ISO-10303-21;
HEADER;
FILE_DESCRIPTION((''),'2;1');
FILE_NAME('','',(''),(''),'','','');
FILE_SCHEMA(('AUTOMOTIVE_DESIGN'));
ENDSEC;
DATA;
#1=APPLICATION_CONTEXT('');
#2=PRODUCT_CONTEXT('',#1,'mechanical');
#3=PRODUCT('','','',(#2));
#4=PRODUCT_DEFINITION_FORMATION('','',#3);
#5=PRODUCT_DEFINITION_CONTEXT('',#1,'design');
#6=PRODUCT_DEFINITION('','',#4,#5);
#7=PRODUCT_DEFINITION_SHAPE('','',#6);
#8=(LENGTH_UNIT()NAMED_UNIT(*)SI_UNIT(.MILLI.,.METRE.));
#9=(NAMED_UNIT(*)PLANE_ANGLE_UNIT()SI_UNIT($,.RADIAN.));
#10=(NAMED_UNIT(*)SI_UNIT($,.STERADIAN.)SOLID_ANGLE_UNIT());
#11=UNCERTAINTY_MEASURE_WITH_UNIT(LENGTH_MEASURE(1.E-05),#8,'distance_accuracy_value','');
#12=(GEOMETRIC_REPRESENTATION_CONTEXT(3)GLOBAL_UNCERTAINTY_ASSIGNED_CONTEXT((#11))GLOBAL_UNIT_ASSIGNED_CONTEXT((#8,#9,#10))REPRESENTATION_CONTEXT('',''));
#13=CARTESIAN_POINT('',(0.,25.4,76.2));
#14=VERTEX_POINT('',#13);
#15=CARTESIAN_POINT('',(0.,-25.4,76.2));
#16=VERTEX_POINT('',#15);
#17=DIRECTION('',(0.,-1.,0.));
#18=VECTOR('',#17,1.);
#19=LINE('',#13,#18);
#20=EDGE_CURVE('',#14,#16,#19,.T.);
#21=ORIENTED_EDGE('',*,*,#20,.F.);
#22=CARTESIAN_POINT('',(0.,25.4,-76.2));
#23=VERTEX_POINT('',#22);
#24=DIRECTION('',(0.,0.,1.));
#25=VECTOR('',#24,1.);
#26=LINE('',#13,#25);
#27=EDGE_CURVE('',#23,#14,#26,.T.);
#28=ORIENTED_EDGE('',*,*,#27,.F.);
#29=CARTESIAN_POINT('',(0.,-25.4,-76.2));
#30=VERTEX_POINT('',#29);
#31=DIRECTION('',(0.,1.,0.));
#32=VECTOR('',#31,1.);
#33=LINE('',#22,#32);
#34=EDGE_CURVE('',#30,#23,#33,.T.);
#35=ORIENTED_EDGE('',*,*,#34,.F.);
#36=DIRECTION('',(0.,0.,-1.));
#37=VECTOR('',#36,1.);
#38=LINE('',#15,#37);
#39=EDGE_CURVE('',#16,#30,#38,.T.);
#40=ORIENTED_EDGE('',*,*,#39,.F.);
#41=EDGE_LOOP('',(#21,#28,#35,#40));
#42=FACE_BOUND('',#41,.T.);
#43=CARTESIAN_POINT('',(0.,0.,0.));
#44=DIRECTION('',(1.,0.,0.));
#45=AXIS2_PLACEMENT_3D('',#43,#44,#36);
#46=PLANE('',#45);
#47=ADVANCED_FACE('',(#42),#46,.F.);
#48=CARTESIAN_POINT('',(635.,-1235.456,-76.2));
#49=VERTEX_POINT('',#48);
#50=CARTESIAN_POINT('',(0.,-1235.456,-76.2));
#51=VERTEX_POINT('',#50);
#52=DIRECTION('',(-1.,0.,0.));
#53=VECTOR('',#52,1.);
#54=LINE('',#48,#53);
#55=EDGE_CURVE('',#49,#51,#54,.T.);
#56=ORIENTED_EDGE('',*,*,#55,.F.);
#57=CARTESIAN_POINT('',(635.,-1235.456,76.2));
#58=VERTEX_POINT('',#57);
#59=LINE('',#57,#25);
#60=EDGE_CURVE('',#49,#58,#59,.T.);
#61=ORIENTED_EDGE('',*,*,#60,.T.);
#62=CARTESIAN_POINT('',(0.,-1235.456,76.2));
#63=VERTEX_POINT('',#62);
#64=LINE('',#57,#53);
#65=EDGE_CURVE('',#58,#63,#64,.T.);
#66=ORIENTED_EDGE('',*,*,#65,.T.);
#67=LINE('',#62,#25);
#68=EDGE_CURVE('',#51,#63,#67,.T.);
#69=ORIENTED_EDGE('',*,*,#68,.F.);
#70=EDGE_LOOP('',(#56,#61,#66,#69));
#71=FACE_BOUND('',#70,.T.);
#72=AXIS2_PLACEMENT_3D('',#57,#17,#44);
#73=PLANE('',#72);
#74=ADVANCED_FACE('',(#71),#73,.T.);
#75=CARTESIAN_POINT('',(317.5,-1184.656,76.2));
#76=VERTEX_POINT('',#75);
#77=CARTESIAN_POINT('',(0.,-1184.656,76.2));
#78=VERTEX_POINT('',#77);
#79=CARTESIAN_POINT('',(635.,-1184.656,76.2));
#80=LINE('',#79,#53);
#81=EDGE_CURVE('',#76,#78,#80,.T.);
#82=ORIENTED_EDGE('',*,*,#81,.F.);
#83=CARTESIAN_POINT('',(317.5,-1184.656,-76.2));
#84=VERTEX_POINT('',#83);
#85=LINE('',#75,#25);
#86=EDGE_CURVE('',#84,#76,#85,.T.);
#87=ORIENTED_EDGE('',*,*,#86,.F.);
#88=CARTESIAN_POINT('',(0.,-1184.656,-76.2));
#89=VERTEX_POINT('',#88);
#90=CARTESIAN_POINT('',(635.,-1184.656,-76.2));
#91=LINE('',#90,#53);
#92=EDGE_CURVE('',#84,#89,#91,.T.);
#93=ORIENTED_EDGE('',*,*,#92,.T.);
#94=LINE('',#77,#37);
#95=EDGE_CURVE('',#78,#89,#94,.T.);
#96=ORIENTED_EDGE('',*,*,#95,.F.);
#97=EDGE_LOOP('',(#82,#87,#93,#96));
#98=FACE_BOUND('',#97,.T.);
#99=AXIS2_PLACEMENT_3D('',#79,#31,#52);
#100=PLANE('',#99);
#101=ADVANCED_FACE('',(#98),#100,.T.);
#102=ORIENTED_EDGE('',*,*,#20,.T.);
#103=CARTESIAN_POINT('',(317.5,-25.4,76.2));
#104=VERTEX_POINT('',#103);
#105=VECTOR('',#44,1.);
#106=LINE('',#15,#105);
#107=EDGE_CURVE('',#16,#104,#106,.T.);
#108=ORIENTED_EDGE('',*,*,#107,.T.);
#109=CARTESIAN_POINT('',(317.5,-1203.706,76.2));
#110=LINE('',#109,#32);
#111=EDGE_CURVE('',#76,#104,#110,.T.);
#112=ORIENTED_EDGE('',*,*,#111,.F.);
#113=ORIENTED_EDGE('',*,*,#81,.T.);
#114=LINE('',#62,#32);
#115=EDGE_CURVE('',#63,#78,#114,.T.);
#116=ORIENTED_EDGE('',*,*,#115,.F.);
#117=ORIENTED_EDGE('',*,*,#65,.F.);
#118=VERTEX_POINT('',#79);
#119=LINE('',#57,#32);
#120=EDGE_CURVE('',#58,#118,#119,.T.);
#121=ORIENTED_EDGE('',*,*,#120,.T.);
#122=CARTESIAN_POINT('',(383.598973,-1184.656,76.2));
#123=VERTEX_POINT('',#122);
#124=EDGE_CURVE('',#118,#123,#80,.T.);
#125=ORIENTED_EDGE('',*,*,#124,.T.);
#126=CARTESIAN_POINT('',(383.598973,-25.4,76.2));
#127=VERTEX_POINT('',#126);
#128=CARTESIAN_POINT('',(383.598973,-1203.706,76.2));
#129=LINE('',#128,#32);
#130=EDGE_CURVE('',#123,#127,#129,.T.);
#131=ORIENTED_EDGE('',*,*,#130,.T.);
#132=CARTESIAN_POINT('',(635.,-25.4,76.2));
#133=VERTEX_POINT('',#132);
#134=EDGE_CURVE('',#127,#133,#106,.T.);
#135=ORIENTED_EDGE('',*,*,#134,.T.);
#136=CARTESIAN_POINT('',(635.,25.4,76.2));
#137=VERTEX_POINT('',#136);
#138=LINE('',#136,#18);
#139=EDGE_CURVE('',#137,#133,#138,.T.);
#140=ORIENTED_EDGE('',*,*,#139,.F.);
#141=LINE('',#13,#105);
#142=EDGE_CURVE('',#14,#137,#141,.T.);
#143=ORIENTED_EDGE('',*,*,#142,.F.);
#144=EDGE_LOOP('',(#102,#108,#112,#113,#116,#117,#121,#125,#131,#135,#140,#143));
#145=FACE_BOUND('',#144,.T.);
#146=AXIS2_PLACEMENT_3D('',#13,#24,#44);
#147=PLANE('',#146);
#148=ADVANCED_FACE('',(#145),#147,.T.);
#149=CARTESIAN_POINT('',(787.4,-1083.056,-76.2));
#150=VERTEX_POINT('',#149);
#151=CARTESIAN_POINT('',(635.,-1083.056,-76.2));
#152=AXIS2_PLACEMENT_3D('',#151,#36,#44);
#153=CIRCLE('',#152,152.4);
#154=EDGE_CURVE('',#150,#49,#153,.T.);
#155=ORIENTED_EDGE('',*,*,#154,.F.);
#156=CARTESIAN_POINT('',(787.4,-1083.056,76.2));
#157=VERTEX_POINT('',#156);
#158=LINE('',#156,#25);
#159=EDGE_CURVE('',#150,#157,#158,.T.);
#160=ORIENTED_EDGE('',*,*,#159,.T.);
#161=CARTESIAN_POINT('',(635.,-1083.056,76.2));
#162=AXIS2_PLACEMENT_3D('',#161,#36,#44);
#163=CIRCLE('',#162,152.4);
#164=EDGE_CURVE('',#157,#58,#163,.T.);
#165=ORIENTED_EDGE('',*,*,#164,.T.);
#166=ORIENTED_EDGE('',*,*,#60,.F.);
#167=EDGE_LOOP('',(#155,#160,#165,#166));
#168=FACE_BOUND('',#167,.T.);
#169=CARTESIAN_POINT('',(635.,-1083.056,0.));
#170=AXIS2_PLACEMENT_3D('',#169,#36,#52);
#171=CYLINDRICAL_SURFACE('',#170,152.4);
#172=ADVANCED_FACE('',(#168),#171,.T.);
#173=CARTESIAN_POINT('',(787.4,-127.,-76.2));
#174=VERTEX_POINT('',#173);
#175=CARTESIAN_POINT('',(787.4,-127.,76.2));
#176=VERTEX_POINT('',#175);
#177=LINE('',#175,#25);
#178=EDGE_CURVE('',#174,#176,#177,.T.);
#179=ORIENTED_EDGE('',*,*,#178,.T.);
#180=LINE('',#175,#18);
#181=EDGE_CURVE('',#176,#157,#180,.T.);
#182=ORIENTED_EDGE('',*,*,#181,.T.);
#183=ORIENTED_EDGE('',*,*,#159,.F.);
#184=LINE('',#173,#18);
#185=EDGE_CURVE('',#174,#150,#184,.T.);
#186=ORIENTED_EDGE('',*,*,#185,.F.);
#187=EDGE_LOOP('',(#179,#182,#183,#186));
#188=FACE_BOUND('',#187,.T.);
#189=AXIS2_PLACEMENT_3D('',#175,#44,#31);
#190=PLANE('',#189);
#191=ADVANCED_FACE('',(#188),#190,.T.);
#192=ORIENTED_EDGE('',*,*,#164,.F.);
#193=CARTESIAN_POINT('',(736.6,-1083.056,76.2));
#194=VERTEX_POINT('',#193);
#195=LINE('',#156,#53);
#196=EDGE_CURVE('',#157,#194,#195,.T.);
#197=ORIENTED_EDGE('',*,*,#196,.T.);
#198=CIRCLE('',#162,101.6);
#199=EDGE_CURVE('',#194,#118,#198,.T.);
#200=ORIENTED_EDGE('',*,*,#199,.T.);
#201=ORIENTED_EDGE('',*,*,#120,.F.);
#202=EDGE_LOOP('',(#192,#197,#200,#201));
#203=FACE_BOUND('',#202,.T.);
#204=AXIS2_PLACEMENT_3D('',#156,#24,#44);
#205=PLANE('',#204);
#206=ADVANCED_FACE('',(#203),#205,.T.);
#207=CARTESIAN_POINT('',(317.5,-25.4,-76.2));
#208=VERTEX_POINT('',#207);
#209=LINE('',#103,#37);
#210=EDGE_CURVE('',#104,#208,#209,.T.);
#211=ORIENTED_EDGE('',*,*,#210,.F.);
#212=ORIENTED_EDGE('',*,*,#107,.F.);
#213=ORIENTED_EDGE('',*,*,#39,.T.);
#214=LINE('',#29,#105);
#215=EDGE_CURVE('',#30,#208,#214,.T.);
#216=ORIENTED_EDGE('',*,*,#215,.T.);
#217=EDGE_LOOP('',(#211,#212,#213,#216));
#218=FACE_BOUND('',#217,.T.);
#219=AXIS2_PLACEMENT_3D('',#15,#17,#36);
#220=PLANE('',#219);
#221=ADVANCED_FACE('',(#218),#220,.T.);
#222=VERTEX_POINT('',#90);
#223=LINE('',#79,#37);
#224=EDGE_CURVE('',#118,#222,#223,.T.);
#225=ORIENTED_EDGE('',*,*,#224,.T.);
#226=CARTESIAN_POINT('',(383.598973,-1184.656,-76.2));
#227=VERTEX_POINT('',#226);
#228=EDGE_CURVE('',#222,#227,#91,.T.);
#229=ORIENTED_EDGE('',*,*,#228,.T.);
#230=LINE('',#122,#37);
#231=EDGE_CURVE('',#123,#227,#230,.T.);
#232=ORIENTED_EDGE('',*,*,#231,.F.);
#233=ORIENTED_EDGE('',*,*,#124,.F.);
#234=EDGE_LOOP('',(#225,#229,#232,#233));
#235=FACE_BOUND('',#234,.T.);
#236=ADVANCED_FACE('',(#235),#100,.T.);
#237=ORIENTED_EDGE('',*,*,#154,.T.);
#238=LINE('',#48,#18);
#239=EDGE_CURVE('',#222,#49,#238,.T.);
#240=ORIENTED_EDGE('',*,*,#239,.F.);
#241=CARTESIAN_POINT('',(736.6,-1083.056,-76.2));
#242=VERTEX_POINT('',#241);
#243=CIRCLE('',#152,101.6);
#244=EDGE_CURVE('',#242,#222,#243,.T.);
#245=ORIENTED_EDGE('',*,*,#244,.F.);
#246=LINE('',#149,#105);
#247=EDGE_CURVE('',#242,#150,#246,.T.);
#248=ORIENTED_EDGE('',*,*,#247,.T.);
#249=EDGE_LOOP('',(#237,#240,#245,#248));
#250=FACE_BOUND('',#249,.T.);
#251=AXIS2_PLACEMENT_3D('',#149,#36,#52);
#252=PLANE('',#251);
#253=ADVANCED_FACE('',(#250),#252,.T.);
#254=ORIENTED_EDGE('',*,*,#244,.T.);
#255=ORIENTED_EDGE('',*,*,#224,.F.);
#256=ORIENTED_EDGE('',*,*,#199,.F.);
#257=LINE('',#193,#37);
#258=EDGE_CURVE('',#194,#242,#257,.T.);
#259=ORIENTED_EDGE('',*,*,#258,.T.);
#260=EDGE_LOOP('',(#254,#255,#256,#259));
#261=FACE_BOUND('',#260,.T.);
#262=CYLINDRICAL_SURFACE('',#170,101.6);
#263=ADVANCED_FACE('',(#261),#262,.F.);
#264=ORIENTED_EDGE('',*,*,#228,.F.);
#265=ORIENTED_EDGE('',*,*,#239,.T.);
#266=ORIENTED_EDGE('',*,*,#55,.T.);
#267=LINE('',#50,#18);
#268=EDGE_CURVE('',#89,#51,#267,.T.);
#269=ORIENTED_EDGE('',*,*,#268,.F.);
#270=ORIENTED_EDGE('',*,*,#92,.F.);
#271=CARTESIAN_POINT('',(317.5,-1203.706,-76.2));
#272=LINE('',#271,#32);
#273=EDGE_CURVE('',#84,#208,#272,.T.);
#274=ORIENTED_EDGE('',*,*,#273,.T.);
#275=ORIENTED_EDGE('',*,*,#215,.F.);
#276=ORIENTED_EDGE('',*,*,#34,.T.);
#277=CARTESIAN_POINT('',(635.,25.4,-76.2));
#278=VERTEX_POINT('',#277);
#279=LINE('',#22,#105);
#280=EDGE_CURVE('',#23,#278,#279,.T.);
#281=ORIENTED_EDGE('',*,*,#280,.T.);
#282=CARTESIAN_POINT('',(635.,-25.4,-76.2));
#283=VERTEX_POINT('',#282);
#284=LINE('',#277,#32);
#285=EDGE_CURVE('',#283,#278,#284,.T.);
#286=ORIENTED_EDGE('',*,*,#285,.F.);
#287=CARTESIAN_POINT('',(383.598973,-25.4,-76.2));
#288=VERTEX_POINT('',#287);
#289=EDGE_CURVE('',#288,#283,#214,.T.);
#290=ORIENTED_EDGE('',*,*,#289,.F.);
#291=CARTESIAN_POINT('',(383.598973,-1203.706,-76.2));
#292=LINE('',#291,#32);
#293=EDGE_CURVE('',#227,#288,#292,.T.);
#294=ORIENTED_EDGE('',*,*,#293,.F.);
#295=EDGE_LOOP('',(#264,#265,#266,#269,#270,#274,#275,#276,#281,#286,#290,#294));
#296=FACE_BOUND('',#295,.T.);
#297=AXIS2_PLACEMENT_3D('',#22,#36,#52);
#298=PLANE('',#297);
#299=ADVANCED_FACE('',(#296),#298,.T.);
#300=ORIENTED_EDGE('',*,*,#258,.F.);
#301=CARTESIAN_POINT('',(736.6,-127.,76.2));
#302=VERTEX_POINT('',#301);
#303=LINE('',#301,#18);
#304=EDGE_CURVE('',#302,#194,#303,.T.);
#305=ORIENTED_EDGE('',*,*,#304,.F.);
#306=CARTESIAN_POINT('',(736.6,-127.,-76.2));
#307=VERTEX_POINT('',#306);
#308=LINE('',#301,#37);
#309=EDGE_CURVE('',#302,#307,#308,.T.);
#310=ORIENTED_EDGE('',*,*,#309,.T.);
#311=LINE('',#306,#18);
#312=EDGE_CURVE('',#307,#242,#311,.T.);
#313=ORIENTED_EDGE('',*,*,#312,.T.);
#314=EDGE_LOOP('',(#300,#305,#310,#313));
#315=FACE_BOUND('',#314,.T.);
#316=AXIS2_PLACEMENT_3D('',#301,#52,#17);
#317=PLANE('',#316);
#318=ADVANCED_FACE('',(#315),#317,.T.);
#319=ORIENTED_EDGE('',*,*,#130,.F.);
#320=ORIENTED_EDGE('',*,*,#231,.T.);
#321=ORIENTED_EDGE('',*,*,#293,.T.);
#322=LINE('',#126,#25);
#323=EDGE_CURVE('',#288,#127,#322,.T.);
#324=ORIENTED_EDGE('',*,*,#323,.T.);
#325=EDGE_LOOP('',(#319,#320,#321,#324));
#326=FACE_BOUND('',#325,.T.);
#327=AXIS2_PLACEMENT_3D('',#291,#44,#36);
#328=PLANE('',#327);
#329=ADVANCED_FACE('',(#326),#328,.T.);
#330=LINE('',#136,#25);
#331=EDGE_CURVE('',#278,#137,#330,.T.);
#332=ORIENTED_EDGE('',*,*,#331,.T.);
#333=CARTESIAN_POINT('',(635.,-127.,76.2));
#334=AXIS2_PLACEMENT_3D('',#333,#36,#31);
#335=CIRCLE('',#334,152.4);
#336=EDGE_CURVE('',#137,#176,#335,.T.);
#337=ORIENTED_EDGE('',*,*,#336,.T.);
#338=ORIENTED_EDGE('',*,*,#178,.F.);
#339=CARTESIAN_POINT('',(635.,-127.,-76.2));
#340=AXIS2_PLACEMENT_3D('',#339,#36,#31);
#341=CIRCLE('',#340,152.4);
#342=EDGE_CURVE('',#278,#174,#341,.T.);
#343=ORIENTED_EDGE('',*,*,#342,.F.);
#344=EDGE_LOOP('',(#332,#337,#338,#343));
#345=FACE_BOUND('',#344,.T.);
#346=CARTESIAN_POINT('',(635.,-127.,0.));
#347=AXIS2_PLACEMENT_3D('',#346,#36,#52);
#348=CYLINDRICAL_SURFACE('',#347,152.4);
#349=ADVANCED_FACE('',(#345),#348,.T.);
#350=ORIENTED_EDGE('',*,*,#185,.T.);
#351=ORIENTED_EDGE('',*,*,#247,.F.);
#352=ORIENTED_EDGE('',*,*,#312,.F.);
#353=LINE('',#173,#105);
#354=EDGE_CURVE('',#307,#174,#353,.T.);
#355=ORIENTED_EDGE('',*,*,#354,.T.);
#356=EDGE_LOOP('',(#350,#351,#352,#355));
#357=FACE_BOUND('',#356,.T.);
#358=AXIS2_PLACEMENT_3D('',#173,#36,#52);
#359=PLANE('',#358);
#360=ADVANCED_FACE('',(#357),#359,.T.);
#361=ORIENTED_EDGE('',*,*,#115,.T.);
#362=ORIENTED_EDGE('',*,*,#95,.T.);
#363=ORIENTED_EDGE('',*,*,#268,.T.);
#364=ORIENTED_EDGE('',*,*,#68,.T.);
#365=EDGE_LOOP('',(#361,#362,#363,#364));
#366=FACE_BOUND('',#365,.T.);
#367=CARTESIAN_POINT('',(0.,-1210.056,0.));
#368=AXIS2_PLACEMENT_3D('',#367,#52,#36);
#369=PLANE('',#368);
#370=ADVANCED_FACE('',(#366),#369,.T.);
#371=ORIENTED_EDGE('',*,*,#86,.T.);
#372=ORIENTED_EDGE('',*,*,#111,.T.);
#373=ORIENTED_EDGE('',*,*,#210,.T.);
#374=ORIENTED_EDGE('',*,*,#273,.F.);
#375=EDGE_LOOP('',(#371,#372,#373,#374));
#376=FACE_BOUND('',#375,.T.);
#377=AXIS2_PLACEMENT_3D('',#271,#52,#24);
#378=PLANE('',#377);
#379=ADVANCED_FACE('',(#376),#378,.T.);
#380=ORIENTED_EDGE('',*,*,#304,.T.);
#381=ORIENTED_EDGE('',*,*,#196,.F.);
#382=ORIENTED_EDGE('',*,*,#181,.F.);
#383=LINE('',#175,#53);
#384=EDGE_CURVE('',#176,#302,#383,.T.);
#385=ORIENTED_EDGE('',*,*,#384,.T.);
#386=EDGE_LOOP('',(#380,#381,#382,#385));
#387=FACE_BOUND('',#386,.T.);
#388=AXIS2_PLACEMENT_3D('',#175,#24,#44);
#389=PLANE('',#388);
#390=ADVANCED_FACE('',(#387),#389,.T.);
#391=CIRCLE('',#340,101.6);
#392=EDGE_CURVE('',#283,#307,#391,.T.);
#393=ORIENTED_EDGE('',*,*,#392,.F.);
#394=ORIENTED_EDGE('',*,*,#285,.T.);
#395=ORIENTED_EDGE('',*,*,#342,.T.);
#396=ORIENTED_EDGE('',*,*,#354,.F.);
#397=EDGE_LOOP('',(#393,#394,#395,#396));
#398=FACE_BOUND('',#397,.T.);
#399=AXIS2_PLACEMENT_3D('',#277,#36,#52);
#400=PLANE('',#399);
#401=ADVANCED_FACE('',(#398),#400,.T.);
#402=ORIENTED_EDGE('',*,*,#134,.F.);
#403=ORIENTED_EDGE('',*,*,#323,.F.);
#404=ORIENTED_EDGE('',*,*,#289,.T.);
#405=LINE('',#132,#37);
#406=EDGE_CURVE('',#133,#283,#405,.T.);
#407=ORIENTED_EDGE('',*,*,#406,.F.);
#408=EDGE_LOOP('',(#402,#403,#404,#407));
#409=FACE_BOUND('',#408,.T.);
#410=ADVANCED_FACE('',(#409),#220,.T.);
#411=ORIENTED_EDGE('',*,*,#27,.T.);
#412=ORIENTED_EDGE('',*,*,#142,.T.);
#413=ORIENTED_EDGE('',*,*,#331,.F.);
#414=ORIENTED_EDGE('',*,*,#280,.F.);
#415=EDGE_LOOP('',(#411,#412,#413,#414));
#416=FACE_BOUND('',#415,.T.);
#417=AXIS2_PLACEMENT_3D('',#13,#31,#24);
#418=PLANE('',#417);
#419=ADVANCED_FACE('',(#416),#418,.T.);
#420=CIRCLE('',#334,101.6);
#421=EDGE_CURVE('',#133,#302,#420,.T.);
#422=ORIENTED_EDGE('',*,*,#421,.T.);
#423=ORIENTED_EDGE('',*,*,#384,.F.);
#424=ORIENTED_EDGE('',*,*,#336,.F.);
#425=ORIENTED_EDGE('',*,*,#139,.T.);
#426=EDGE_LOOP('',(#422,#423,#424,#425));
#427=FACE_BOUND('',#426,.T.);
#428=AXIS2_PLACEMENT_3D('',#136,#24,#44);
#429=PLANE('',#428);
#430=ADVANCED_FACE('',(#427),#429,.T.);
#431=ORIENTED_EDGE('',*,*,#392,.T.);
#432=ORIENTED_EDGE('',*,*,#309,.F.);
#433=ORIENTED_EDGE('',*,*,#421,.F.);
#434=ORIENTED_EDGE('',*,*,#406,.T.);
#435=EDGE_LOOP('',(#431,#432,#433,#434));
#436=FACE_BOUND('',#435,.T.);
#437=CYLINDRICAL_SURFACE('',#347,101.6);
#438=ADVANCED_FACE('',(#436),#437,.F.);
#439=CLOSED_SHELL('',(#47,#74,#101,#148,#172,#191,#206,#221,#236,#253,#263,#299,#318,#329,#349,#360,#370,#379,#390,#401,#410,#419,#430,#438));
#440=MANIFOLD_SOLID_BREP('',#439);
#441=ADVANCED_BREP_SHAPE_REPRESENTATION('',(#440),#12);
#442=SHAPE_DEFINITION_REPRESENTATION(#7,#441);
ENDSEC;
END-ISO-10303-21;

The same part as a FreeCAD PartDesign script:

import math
import FreeCAD as App
import Part
import Sketcher

V = App.Vector
Q = App.Units.Quantity

doc = App.newDocument("Part")
body = doc.addObject("PartDesign::Body", "Body")

# Sketch on YZ plane
sketch1 = body.newObject("Sketcher::SketchObject", "Sketch")
sketch1.AttachmentSupport = (doc.getObject("YZ_Plane"), [""])
sketch1.MapMode = "FlatFace"
sketch1.addGeometry([
    Part.LineSegment(V(25, 76, 0), V(-25, 76, 0)),
    Part.LineSegment(V(-25, 76, 0), V(-25, -76, 0)),
    Part.LineSegment(V(-25, -76, 0), V(25, -76, 0)),
    Part.LineSegment(V(25, -76, 0), V(25, 76, 0)),
], False)
sketch1.addConstraint([
    Sketcher.Constraint("Coincident", 0, 2, 1, 1),
    Sketcher.Constraint("Coincident", 1, 2, 2, 1),
    Sketcher.Constraint("Coincident", 2, 2, 3, 1),
    Sketcher.Constraint("Coincident", 3, 2, 0, 1),
    Sketcher.Constraint("Horizontal", 0),
    Sketcher.Constraint("Vertical", 1),
    Sketcher.Constraint("Horizontal", 2),
    Sketcher.Constraint("Vertical", 3),
    Sketcher.Constraint("Symmetric", 0, 2, 2, 2, -1, 1),
    Sketcher.Constraint("DistanceX", 0, 2, 0, 1, Q("2 in")),
    Sketcher.Constraint("DistanceY", 1, 2, 1, 1, Q("6 in")),
])

# Sketch on XY plane
sketch2 = body.newObject("Sketcher::SketchObject", "Sketch001")
sketch2.AttachmentSupport = (doc.getObject("XY_Plane"), [""])
sketch2.MapMode = "FlatFace"
sketch2.addGeometry([
    Part.LineSegment(V(0, 0, 0), V(635, 0, 0)),  # 0
    Part.ArcOfCircle(Part.Circle(V(635, -127, 0), V(0, 0, 1), 127), math.radians(0), math.radians(90)),  # 1
    Part.LineSegment(V(762, -127, 0), V(762, -1083, 0)),  # 2
    Part.ArcOfCircle(Part.Circle(V(635, -1083, 0), V(0, 0, 1), 127), math.radians(-90), math.radians(0)),  # 3
    Part.LineSegment(V(635, -1210, 0), V(0, -1210, 0)),  # 4
], False)
sketch2.addConstraint([
    Sketcher.Constraint("Tangent", 0, 2, 1, 2),
    Sketcher.Constraint("Tangent", 1, 1, 2, 1),
    Sketcher.Constraint("Tangent", 2, 2, 3, 2),
    Sketcher.Constraint("Tangent", 3, 1, 4, 1),
    Sketcher.Constraint("Horizontal", 0),
    Sketcher.Constraint("Vertical", 2),
    Sketcher.Constraint("Horizontal", 4),
    Sketcher.Constraint("Coincident", 0, 1, -1, 1),
    Sketcher.Constraint("Equal", 1, 3),
    Sketcher.Constraint("PointOnObject", 4, 2, -2),
    Sketcher.Constraint("Radius", 1, Q("5 in")),
    Sketcher.Constraint("DistanceX", 0, 1, 0, 2, Q("25 in")),
    Sketcher.Constraint("DistanceY", 2, 2, 2, 1, Q("37.64 in")),
])
doc.recompute()

additivepipe = body.newObject("PartDesign::AdditivePipe", "AdditivePipe")
additivepipe.Profile = sketch1
additivepipe.Spine = (sketch2, ["Edge1", "Edge2", "Edge3", "Edge4", "Edge5"])

# Sketch on XZ plane
sketch3 = body.newObject("Sketcher::SketchObject", "Sketch002")
sketch3.AttachmentSupport = (doc.getObject("XZ_Plane"), [""])
sketch3.MapMode = "FlatFace"
sketch3.AttachmentOffset = App.Placement(V(0, 0, -1 * 25.4), App.Rotation())
sketch3.addGeometry([
    Part.LineSegment(V(318, -76, 0), V(318, 76, 0)),
    Part.LineSegment(V(318, 76, 0), V(384, 76, 0)),
    Part.LineSegment(V(384, 76, 0), V(384, -76, 0)),
    Part.LineSegment(V(384, -76, 0), V(318, -76, 0)),
], False)
sketch3.addConstraint([
    Sketcher.Constraint("Coincident", 0, 2, 1, 1),
    Sketcher.Constraint("Coincident", 1, 2, 2, 1),
    Sketcher.Constraint("Coincident", 2, 2, 3, 1),
    Sketcher.Constraint("Coincident", 3, 2, 0, 1),
    Sketcher.Constraint("Vertical", 0),
    Sketcher.Constraint("Horizontal", 1),
    Sketcher.Constraint("Vertical", 2),
    Sketcher.Constraint("Horizontal", 3),
    Sketcher.Constraint("DistanceY", 0, 1, 0, 2, Q("6 in")),
    Sketcher.Constraint("DistanceY", -1, 1, 0, 2, Q("3 in")),
    Sketcher.Constraint("DistanceX", -1, 1, 0, 2, Q("12.5 in")),
    Sketcher.Constraint("DistanceX", 1, 1, 1, 2, Q("66.098973 mm")),
])
pad1 = body.newObject("PartDesign::Pad", "Pad")
pad1.Profile = sketch3
pad1.Length = Q("48.39 in")

doc.recompute()
